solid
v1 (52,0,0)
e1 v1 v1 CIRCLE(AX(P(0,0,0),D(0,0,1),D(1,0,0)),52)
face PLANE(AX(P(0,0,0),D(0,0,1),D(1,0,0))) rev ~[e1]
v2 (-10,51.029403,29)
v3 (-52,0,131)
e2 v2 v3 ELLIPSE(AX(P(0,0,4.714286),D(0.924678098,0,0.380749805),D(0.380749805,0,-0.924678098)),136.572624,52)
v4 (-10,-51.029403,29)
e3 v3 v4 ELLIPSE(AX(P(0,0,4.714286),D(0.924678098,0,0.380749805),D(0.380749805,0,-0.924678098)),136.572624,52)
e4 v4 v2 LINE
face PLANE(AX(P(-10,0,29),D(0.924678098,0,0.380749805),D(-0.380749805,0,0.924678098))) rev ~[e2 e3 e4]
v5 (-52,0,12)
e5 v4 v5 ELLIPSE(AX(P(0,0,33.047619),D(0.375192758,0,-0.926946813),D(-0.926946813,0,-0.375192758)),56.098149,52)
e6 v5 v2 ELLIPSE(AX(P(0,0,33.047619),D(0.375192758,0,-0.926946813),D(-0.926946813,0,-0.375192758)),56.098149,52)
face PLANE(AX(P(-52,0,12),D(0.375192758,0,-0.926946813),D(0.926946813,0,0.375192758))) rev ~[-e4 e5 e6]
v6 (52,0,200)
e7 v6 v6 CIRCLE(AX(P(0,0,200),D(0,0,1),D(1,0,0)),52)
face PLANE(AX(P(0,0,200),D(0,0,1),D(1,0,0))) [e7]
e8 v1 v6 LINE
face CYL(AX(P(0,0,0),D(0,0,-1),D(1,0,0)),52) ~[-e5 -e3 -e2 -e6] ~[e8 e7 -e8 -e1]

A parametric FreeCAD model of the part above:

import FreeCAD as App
import Part
import Sketcher

V = App.Vector

doc = App.newDocument("Part")
params = doc.addObject("Spreadsheet::Sheet", "Params")
for row, (alias, value) in enumerate([
    ("sketch1_diameter", "104 mm"),
    ("pad1_length", "200 mm"),
    ("sketch2_height", "119 mm"),
    ("pocket1_length", "104 mm"),
], start=1):
    params.set(f"A{row}", alias)
    params.set(f"B{row}", "=" + value)
    params.setAlias(f"B{row}", alias)

body = doc.addObject("PartDesign::Body", "Body")

# Sketch on XY plane
sketch1 = body.newObject("Sketcher::SketchObject", "Sketch")
sketch1.AttachmentSupport = (doc.getObject("XY_Plane"), [""])
sketch1.MapMode = "FlatFace"
sketch1.addGeometry(Part.Circle(V(0, 0, 0), V(0, 0, 1), 52), False)
sketch1.addConstraint([
    Sketcher.Constraint("Coincident", 0, 3, -1, 1),
    Sketcher.Constraint("Diameter", 0, 104.0),
])
sketch1.setExpression("Constraints[1]", "Params.sketch1_diameter")
pad1 = body.newObject("PartDesign::Pad", "Pad")
pad1.Profile = sketch1
pad1.setExpression("Length", "Params.pad1_length")

# Sketch on XZ plane
sketch2 = body.newObject("Sketcher::SketchObject", "Sketch001")
sketch2.AttachmentSupport = (doc.getObject("XZ_Plane"), [""])
sketch2.MapMode = "FlatFace"
sketch2.addGeometry([
    Part.LineSegment(V(-52, 131, 0), V(-52, 12, 0)),
    Part.LineSegment(V(-52, 12, 0), V(-10, 29, 0)),
    Part.LineSegment(V(-10, 29, 0), V(-52, 131, 0)),
], False)
sketch2.addConstraint([
    Sketcher.Constraint("Coincident", 0, 2, 1, 1),
    Sketcher.Constraint("Coincident", 1, 2, 2, 1),
    Sketcher.Constraint("Coincident", 2, 2, 0, 1),
    Sketcher.Constraint("Vertical", 0),
    Sketcher.Constraint("DistanceY", 0, 2, 0, 1, 119.0),
    Sketcher.Constraint("DistanceX", 0, 2, -1, 1, 52.0),
    Sketcher.Constraint("DistanceY", -1, 1, 0, 2, 12.0),
    Sketcher.Constraint("DistanceX", 1, 2, -1, 1, 10.0),
    Sketcher.Constraint("DistanceY", -1, 1, 1, 2, 29.0),
])
sketch2.setExpression("Constraints[4]", "Params.sketch2_height")
pocket1 = body.newObject("PartDesign::Pocket", "Pocket")
pocket1.Profile = sketch2
pocket1.setExpression("Length", "Params.pocket1_length")
pocket1.Midplane = True

doc.recompute()
